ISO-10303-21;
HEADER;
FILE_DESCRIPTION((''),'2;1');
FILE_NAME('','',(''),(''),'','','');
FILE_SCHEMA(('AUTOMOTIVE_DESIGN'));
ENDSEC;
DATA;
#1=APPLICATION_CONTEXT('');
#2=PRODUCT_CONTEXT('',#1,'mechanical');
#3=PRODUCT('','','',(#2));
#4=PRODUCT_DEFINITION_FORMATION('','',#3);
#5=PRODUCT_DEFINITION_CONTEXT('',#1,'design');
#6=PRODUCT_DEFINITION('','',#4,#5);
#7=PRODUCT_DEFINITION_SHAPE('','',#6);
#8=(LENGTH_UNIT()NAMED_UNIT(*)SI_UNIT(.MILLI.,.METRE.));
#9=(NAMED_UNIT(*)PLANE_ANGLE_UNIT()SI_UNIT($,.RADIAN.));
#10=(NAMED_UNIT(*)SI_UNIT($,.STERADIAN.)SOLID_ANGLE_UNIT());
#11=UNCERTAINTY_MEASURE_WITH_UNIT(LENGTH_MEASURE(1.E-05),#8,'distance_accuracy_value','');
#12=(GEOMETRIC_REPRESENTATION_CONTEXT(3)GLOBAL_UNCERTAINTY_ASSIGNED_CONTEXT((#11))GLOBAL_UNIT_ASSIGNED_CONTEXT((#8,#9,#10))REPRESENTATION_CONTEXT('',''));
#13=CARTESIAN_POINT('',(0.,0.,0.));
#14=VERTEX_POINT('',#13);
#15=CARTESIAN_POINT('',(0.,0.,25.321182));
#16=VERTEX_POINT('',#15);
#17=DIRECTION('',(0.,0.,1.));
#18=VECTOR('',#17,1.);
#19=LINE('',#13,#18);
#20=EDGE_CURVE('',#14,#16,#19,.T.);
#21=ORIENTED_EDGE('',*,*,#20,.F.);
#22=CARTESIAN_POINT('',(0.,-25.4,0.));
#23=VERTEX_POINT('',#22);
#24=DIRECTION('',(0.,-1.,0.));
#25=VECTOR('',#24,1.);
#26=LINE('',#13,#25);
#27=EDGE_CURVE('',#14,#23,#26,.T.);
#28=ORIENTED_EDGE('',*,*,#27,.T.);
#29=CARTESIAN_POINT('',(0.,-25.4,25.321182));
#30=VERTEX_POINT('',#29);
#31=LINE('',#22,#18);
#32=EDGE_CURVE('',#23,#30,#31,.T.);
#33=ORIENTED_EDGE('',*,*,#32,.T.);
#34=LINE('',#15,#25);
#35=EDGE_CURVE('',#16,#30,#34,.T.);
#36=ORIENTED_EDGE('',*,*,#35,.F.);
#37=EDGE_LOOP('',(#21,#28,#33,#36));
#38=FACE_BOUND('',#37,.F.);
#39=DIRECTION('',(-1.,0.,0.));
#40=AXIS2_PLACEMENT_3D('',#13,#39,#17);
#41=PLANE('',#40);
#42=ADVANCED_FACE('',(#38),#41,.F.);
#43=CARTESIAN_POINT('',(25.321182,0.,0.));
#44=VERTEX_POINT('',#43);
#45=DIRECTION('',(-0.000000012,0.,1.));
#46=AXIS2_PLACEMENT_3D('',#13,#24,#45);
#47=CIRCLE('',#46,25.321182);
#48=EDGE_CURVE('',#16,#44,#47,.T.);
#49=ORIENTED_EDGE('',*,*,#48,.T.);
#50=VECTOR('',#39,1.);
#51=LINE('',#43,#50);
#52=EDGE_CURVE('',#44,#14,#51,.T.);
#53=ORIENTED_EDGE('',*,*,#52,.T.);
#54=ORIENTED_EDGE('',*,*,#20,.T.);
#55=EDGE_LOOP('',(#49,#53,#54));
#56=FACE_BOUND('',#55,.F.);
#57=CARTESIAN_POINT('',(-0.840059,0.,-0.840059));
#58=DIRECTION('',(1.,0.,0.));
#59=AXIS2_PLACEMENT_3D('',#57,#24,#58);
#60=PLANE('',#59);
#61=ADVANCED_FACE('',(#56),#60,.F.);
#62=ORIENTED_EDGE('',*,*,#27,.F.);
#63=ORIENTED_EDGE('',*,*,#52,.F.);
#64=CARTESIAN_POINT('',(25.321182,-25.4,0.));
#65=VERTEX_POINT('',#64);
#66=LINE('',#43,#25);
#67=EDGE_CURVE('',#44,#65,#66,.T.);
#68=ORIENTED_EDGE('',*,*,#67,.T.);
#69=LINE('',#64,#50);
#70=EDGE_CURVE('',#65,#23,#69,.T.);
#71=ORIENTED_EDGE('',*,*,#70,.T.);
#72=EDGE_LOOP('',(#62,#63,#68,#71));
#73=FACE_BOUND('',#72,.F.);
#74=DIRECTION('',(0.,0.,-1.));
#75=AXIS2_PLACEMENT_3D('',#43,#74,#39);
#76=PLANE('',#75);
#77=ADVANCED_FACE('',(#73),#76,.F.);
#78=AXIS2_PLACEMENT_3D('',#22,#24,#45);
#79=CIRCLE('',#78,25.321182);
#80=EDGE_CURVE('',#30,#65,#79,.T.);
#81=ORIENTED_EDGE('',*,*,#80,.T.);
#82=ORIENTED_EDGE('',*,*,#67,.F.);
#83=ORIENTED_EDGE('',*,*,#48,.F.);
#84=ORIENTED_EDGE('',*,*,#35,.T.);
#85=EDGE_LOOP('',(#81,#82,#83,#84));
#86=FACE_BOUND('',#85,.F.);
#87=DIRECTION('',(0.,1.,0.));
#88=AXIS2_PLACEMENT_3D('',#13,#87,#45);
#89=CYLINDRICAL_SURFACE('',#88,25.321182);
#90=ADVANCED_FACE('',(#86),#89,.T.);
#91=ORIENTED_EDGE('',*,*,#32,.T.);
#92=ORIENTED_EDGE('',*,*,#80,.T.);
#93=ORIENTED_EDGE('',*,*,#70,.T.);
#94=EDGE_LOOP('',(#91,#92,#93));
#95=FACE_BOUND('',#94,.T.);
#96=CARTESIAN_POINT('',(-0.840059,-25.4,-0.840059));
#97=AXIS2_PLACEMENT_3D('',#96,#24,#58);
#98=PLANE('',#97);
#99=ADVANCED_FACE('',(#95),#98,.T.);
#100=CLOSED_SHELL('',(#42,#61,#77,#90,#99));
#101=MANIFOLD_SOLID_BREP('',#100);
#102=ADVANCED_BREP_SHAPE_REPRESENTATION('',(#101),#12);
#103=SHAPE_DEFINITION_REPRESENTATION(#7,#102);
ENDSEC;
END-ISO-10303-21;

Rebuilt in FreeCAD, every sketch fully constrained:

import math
import FreeCAD as App
import Part
import Sketcher

V = App.Vector
Q = App.Units.Quantity

doc = App.newDocument("Part")
params = doc.addObject("Spreadsheet::Sheet", "Params")
for row, (alias, value) in enumerate([
    ("pad1_length", "1 in"),
], start=1):
    params.set(f"A{row}", alias)
    params.set(f"B{row}", "=" + value)
    params.setAlias(f"B{row}", alias)

body = doc.addObject("PartDesign::Body", "Body")

sketch1 = body.newObject("Sketcher::SketchObject", "Sketch")
sketch1.AttachmentSupport = (doc.getObject("XZ_Plane"), [""])
sketch1.MapMode = "FlatFace"
sketch1.addGeometry(Part.LineSegment(V(25, 0, 0), V(0, 0, 0)), False)
sketch1.addGeometry(Part.LineSegment(V(0, 0, 0), V(0, 25, 0)), False)
sketch1.addGeometry(Part.ArcOfCircle(Part.Circle(V(0, 0, 0), V(0, 0, 1), 25), math.radians(90), math.radians(360)), False)
sketch1.addConstraint(Sketcher.Constraint("Coincident", 0, 2, 1, 1))
sketch1.addConstraint(Sketcher.Constraint("Coincident", 1, 2, 2, 1))
sketch1.addConstraint(Sketcher.Constraint("Coincident", 2, 2, 0, 1))
sketch1.addConstraint(Sketcher.Constraint("Horizontal", 0))
sketch1.addConstraint(Sketcher.Constraint("Vertical", 1))
sketch1.addConstraint(Sketcher.Constraint("Coincident", 2, 3, -1, 1))
sketch1.addConstraint(Sketcher.Constraint("Coincident", 0, 2, -1, 1))
sketch1.addConstraint(Sketcher.Constraint("Radius", 2, Q("25.321182 mm")))
pad1 = body.newObject("PartDesign::Pad", "Pad")
pad1.Profile = sketch1
pad1.setExpression("Length", "Params.pad1_length")

doc.recompute()
